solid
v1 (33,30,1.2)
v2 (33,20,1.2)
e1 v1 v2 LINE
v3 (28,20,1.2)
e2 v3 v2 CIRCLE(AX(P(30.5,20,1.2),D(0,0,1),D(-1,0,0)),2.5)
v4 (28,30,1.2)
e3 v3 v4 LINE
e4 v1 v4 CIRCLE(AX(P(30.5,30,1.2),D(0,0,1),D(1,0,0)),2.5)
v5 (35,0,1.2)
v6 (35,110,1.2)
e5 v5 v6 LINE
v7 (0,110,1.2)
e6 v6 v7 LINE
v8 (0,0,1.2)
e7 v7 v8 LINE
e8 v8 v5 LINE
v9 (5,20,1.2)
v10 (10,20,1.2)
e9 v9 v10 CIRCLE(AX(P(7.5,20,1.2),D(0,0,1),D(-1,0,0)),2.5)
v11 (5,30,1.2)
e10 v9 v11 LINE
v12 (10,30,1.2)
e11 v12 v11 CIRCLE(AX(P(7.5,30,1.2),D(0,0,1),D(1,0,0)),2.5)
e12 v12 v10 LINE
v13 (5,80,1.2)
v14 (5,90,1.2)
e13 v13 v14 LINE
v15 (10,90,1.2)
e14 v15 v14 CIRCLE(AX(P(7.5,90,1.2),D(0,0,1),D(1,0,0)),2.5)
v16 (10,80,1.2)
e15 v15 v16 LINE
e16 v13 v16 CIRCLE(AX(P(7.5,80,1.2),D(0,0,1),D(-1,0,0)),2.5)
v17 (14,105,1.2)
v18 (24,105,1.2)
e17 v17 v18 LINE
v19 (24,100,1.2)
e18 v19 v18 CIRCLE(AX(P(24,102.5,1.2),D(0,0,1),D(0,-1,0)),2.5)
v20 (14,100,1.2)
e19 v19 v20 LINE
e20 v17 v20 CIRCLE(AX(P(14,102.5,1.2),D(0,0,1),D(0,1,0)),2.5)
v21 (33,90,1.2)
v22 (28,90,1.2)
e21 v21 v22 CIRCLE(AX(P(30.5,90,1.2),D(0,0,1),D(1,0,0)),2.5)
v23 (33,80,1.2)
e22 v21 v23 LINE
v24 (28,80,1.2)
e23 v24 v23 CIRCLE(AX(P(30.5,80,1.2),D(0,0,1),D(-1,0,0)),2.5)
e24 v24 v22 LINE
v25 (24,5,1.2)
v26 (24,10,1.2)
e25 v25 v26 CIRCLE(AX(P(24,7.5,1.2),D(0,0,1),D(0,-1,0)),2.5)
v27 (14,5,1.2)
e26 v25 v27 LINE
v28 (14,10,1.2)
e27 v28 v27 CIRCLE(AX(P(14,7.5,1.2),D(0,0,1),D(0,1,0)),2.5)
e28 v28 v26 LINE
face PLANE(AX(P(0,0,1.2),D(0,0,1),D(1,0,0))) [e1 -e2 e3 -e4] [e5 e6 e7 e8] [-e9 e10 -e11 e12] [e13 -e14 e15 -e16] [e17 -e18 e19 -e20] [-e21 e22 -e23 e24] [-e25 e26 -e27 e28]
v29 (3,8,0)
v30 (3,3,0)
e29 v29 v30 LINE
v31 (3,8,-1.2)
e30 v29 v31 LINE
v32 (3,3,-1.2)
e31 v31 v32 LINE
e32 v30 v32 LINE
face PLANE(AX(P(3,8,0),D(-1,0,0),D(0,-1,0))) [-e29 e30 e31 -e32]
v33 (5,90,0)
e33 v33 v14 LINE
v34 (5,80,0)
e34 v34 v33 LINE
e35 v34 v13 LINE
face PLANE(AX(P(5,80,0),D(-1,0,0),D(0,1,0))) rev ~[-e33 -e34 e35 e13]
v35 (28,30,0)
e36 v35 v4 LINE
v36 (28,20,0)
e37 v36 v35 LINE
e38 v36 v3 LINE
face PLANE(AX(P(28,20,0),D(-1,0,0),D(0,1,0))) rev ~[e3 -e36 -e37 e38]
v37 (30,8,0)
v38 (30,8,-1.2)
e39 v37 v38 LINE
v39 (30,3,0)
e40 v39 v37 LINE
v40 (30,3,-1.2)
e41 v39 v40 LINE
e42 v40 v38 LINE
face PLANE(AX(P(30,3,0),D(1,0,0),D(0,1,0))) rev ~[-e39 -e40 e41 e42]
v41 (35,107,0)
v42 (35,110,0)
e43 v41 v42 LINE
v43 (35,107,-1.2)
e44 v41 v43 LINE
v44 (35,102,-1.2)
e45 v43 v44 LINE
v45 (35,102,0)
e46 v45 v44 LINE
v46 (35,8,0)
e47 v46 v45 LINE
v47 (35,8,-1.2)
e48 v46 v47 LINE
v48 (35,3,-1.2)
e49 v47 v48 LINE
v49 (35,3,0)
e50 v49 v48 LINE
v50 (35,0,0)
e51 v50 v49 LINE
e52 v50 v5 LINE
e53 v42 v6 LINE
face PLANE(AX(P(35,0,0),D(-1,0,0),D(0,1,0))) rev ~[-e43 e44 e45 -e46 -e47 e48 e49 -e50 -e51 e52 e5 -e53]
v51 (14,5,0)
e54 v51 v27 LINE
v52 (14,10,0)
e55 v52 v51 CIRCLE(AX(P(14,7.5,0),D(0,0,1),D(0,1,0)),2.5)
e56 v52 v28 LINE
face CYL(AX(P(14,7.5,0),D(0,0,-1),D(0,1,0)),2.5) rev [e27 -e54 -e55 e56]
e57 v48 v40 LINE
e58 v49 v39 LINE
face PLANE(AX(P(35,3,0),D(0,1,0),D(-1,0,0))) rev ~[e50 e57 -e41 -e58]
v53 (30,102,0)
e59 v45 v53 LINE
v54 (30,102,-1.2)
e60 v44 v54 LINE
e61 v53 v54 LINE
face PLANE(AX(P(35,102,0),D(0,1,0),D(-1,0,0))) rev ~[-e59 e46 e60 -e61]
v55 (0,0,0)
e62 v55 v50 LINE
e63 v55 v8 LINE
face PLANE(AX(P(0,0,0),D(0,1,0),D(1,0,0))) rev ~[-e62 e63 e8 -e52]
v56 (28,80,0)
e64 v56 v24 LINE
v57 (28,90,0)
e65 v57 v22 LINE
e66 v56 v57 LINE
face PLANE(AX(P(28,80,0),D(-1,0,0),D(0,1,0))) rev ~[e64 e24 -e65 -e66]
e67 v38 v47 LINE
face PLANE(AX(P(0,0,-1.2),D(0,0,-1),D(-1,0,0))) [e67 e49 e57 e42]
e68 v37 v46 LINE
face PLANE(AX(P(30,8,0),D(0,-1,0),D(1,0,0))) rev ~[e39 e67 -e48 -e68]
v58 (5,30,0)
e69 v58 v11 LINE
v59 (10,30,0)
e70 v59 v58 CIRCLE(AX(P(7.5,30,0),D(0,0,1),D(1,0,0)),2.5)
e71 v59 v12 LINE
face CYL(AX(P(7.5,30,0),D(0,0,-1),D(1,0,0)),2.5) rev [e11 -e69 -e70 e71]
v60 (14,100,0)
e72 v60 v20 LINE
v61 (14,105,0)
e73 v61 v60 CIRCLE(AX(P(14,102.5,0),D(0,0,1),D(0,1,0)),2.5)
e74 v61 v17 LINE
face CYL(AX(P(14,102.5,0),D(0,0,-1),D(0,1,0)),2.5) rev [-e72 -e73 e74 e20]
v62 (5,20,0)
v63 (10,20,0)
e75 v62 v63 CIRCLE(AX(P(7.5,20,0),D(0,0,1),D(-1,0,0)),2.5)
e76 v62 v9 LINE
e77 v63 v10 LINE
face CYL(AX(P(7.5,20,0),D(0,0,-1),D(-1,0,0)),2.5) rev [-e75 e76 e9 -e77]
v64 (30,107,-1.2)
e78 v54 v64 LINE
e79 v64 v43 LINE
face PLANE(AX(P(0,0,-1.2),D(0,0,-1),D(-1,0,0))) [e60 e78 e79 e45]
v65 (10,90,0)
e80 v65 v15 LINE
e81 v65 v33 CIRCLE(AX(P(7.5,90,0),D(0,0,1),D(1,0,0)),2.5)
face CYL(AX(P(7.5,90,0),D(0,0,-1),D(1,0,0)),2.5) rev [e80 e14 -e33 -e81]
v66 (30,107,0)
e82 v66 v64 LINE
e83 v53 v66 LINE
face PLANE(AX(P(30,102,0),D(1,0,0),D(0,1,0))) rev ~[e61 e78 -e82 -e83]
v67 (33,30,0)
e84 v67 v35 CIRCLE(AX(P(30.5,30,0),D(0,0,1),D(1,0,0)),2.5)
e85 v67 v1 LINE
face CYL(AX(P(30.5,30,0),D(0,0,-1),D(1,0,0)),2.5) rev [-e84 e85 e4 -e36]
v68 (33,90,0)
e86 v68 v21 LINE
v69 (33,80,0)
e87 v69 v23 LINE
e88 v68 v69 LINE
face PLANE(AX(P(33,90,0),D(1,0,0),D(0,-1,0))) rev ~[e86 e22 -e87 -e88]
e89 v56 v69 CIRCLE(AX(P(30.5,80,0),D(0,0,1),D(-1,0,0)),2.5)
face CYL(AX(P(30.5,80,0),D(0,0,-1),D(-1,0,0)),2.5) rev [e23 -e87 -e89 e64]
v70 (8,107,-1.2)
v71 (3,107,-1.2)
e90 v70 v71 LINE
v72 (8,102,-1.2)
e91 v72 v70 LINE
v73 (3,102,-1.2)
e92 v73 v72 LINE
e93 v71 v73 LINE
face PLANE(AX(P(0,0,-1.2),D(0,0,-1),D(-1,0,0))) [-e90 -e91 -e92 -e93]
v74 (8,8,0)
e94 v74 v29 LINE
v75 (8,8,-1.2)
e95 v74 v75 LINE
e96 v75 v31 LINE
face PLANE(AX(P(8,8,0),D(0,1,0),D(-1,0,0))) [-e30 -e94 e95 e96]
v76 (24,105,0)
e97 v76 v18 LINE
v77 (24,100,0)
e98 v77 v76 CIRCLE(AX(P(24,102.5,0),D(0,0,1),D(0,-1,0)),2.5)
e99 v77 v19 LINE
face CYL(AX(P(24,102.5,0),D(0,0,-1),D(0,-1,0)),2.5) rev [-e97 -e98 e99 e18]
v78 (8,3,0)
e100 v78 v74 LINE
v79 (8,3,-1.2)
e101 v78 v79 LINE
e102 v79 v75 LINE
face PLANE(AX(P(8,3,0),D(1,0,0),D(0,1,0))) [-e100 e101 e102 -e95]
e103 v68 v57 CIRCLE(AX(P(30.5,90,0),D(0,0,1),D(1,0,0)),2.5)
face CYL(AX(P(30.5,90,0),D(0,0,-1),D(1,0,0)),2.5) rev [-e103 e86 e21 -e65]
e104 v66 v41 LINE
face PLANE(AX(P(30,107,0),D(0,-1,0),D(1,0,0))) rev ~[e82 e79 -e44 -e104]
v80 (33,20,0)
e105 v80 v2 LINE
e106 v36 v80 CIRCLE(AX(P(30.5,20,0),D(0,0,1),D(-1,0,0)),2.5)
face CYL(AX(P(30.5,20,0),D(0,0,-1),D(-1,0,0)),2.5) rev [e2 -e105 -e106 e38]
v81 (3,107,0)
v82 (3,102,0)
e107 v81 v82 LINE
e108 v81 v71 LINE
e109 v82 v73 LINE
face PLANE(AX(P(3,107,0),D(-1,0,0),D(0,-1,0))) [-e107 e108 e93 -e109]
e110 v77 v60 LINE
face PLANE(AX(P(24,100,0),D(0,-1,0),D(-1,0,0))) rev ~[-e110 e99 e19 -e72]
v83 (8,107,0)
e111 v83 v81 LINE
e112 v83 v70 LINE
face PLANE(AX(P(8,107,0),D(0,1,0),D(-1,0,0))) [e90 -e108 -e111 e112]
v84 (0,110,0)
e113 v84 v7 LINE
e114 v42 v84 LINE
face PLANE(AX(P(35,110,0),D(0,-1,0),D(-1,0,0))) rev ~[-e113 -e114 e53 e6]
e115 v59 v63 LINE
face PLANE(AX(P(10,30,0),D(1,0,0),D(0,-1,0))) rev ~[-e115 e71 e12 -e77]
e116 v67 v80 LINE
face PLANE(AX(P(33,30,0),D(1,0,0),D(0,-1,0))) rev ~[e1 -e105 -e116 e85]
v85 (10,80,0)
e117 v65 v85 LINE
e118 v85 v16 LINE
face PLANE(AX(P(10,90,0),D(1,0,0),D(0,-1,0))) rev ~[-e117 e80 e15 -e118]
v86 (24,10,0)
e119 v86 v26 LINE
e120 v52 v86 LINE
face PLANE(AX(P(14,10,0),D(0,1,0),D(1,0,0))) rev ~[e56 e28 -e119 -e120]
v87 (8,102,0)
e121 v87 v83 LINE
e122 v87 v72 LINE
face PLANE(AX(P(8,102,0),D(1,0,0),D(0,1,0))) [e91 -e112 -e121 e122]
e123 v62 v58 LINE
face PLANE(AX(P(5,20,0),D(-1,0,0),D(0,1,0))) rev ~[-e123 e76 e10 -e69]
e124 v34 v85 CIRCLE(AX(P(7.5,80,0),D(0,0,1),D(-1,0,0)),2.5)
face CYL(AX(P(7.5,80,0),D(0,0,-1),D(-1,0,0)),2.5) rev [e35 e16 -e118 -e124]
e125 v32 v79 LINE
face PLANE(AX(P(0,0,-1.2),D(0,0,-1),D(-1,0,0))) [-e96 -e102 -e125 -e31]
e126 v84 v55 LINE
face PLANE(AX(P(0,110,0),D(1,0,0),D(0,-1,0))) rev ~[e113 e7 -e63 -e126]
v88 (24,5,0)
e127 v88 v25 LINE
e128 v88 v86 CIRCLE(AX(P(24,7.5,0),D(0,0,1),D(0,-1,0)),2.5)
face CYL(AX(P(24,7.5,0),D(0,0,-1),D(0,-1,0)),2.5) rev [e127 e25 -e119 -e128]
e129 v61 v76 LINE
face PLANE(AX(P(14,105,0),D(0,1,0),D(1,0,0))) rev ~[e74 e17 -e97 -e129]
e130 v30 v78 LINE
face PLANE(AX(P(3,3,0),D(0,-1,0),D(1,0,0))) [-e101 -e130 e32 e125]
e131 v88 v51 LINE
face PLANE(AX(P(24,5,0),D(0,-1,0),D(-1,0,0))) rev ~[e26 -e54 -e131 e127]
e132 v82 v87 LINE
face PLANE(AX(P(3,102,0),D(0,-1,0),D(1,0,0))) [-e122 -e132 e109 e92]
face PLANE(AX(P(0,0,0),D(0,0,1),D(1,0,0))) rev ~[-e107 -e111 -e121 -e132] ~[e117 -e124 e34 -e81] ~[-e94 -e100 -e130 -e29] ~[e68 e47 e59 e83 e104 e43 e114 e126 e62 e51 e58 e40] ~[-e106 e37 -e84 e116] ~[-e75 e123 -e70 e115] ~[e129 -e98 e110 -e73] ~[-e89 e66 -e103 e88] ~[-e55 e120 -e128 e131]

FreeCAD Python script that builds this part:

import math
import FreeCAD as App
import Part
import Sketcher

V = App.Vector


def add_polygon(sketch, points):
    """Adds a closed chain of lines whose ends are joined by coincident constraints."""
    first, n = sketch.GeometryCount, len(points)
    for a, b in zip(points, points[1:] + points[:1]):
        sketch.addGeometry(Part.LineSegment(App.Vector(*a, 0), App.Vector(*b, 0)), False)
    for i in range(n):
        sketch.addConstraint(Sketcher.Constraint("Coincident", first + i, 2, first + (i + 1) % n, 1))

doc = App.newDocument("Part")
body = doc.addObject("PartDesign::Body", "Body")

# Sketch on XY plane
sketch1 = body.newObject("Sketcher::SketchObject", "Sketch")
sketch1.AttachmentSupport = (doc.getObject("XY_Plane"), [""])
sketch1.MapMode = "FlatFace"
add_polygon(sketch1, [(0, 110), (0, 0), (35, 0), (35, 110)])  # lines 0-3
sketch1.addGeometry(Part.ArcOfCircle(Part.Circle(V(7.5, 30, 0), V(0, 0, 1), 2.5), math.radians(0), math.radians(180)), False)  # 4
sketch1.addGeometry(Part.LineSegment(V(10, 30, 0), V(10, 20, 0)), False)  # 5
sketch1.addGeometry(Part.ArcOfCircle(Part.Circle(V(7.5, 20, 0), V(0, 0, 1), 2.5), math.radians(180), math.radians(360)), False)  # 6
sketch1.addGeometry(Part.LineSegment(V(5, 20, 0), V(5, 30, 0)), False)  # 7
sketch1.addGeometry(Part.ArcOfCircle(Part.Circle(V(14, 7.5, 0), V(0, 0, 1), 2.5), math.radians(90), math.radians(270)), False)  # 8
sketch1.addGeometry(Part.LineSegment(V(14, 10, 0), V(24, 10, 0)), False)  # 9
sketch1.addGeometry(Part.ArcOfCircle(Part.Circle(V(24, 7.5, 0), V(0, 0, 1), 2.5), math.radians(-90), math.radians(90)), False)  # 10
sketch1.addGeometry(Part.LineSegment(V(24, 5, 0), V(14, 5, 0)), False)  # 11
sketch1.addGeometry(Part.ArcOfCircle(Part.Circle(V(30.5, 30, 0), V(0, 0, 1), 2.5), math.radians(0), math.radians(180)), False)  # 12
sketch1.addGeometry(Part.LineSegment(V(33, 30, 0), V(33, 20, 0)), False)  # 13
sketch1.addGeometry(Part.ArcOfCircle(Part.Circle(V(30.5, 20, 0), V(0, 0, 1), 2.5), math.radians(180), math.radians(360)), False)  # 14
sketch1.addGeometry(Part.LineSegment(V(28, 20, 0), V(28, 30, 0)), False)  # 15
sketch1.addGeometry(Part.ArcOfCircle(Part.Circle(V(7.5, 90, 0), V(0, 0, 1), 2.5), math.radians(0), math.radians(180)), False)  # 16
sketch1.addGeometry(Part.LineSegment(V(10, 90, 0), V(10, 80, 0)), False)  # 17
sketch1.addGeometry(Part.ArcOfCircle(Part.Circle(V(7.5, 80, 0), V(0, 0, 1), 2.5), math.radians(180), math.radians(360)), False)  # 18
sketch1.addGeometry(Part.LineSegment(V(5, 80, 0), V(5, 90, 0)), False)  # 19
sketch1.addGeometry(Part.ArcOfCircle(Part.Circle(V(14, 102.5, 0), V(0, 0, 1), 2.5), math.radians(90), math.radians(270)), False)  # 20
sketch1.addGeometry(Part.LineSegment(V(14, 105, 0), V(24, 105, 0)), False)  # 21
sketch1.addGeometry(Part.ArcOfCircle(Part.Circle(V(24, 102.5, 0), V(0, 0, 1), 2.5), math.radians(-90), math.radians(90)), False)  # 22
sketch1.addGeometry(Part.LineSegment(V(24, 100, 0), V(14, 100, 0)), False)  # 23
sketch1.addGeometry(Part.ArcOfCircle(Part.Circle(V(30.5, 90, 0), V(0, 0, 1), 2.5), math.radians(0), math.radians(180)), False)  # 24
sketch1.addGeometry(Part.LineSegment(V(33, 90, 0), V(33, 80, 0)), False)  # 25
sketch1.addGeometry(Part.ArcOfCircle(Part.Circle(V(30.5, 80, 0), V(0, 0, 1), 2.5), math.radians(180), math.radians(360)), False)  # 26
sketch1.addGeometry(Part.LineSegment(V(28, 80, 0), V(28, 90, 0)), False)  # 27
sketch1.addConstraint(Sketcher.Constraint("Tangent", 4, 1, 5, 1))
sketch1.addConstraint(Sketcher.Constraint("Tangent", 5, 2, 6, 2))
sketch1.addConstraint(Sketcher.Constraint("Tangent", 6, 1, 7, 1))
sketch1.addConstraint(Sketcher.Constraint("Tangent", 7, 2, 4, 2))
sketch1.addConstraint(Sketcher.Constraint("Tangent", 8, 1, 9, 1))
sketch1.addConstraint(Sketcher.Constraint("Tangent", 9, 2, 10, 2))
sketch1.addConstraint(Sketcher.Constraint("Tangent", 10, 1, 11, 1))
sketch1.addConstraint(Sketcher.Constraint("Tangent", 11, 2, 8, 2))
sketch1.addConstraint(Sketcher.Constraint("Tangent", 12, 1, 13, 1))
sketch1.addConstraint(Sketcher.Constraint("Tangent", 13, 2, 14, 2))
sketch1.addConstraint(Sketcher.Constraint("Tangent", 14, 1, 15, 1))
sketch1.addConstraint(Sketcher.Constraint("Tangent", 15, 2, 12, 2))
sketch1.addConstraint(Sketcher.Constraint("Tangent", 16, 1, 17, 1))
sketch1.addConstraint(Sketcher.Constraint("Tangent", 17, 2, 18, 2))
sketch1.addConstraint(Sketcher.Constraint("Tangent", 18, 1, 19, 1))
sketch1.addConstraint(Sketcher.Constraint("Tangent", 19, 2, 16, 2))
sketch1.addConstraint(Sketcher.Constraint("Tangent", 20, 1, 21, 1))
sketch1.addConstraint(Sketcher.Constraint("Tangent", 21, 2, 22, 2))
sketch1.addConstraint(Sketcher.Constraint("Tangent", 22, 1, 23, 1))
sketch1.addConstraint(Sketcher.Constraint("Tangent", 23, 2, 20, 2))
sketch1.addConstraint(Sketcher.Constraint("Tangent", 24, 1, 25, 1))
sketch1.addConstraint(Sketcher.Constraint("Tangent", 25, 2, 26, 2))
sketch1.addConstraint(Sketcher.Constraint("Tangent", 26, 1, 27, 1))
sketch1.addConstraint(Sketcher.Constraint("Tangent", 27, 2, 24, 2))
sketch1.addConstraint(Sketcher.Constraint("Vertical", 0))
sketch1.addConstraint(Sketcher.Constraint("Horizontal", 1))
sketch1.addConstraint(Sketcher.Constraint("Vertical", 2))
sketch1.addConstraint(Sketcher.Constraint("Horizontal", 3))
sketch1.addConstraint(Sketcher.Constraint("Vertical", 5))
sketch1.addConstraint(Sketcher.Constraint("Vertical", 7))
sketch1.addConstraint(Sketcher.Constraint("Horizontal", 9))
sketch1.addConstraint(Sketcher.Constraint("Horizontal", 11))
sketch1.addConstraint(Sketcher.Constraint("Vertical", 13))
sketch1.addConstraint(Sketcher.Constraint("Vertical", 15))
sketch1.addConstraint(Sketcher.Constraint("Vertical", 17))
sketch1.addConstraint(Sketcher.Constraint("Vertical", 19))
sketch1.addConstraint(Sketcher.Constraint("Horizontal", 21))
sketch1.addConstraint(Sketcher.Constraint("Horizontal", 23))
sketch1.addConstraint(Sketcher.Constraint("Vertical", 25))
sketch1.addConstraint(Sketcher.Constraint("Vertical", 27))
sketch1.addConstraint(Sketcher.Constraint("Coincident", 0, 2, -1, 1))
sketch1.addConstraint(Sketcher.Constraint("Equal", 6, 8))
sketch1.addConstraint(Sketcher.Constraint("Equal", 10, 12))
sketch1.addConstraint(Sketcher.Constraint("Equal", 14, 16))
sketch1.addConstraint(Sketcher.Constraint("Equal", 18, 20))
sketch1.addConstraint(Sketcher.Constraint("Equal", 22, 24))
sketch1.addConstraint(Sketcher.Constraint("Horizontal", 4, 3, 12, 3))
sketch1.addConstraint(Sketcher.Constraint("Horizontal", 6, 3, 14, 3))
sketch1.addConstraint(Sketcher.Constraint("Horizontal", 16, 3, 24, 3))
sketch1.addConstraint(Sketcher.Constraint("Horizontal", 18, 3, 26, 3))
sketch1.addConstraint(Sketcher.Constraint("Vertical", 6, 3, 16, 3))
sketch1.addConstraint(Sketcher.Constraint("Vertical", 8, 3, 20, 3))
sketch1.addConstraint(Sketcher.Constraint("Vertical", 10, 3, 22, 3))
sketch1.addConstraint(Sketcher.Constraint("Vertical", 14, 3, 24, 3))
sketch1.addConstraint(Sketcher.Constraint("Equal", 23, 5))
sketch1.addConstraint(Sketcher.Constraint("Equal", 15, 17))
sketch1.addConstraint(Sketcher.Constraint("Radius", 4, 2.5))
sketch1.addConstraint(Sketcher.Constraint("DistanceX", 1, 1, 1, 2, 35.0))
sketch1.addConstraint(Sketcher.Constraint("DistanceX", 9, 1, 9, 2, 10.0))
sketch1.addConstraint(Sketcher.Constraint("DistanceY", 0, 2, 0, 1, 110.0))
sketch1.addConstraint(Sketcher.Constraint("DistanceX", -1, 1, 4, 1, 10.0))
sketch1.addConstraint(Sketcher.Constraint("DistanceY", -1, 1, 8, 1, 10.0))
sketch1.addConstraint(Sketcher.Constraint("DistanceY", 4, 3, 18, 3, 50.0))
sketch1.addConstraint(Sketcher.Constraint("DistanceY", 8, 1, 5, 2, 10.0))
sketch1.addConstraint(Sketcher.Constraint("DistanceY", 20, 1, 3, 2, 5.0))
sketch1.addConstraint(Sketcher.Constraint("DistanceX", -1, 1, 8, 3, 14.0))
sketch1.addConstraint(Sketcher.Constraint("DistanceX", -1, 1, 12, 1, 33.0))
pad1 = body.newObject("PartDesign::Pad", "Pad")
pad1.Profile = sketch1
pad1.Length = 1.2

# Sketch on XY plane
sketch2 = body.newObject("Sketcher::SketchObject", "Sketch001")
sketch2.AttachmentSupport = (doc.getObject("XY_Plane"), [""])
sketch2.MapMode = "FlatFace"
add_polygon(sketch2, [(35, 8), (35, 3), (30, 3), (30, 8)])  # lines 0-3
add_polygon(sketch2, [(8, 3), (3, 3), (3, 8), (8, 8)])  # lines 4-7
add_polygon(sketch2, [(8, 102), (3, 102), (3, 107), (8, 107)])  # lines 8-11
add_polygon(sketch2, [(30, 102), (30, 107), (35, 107), (35, 102)])  # lines 12-15
sketch2.addConstraint(Sketcher.Constraint("Vertical", 0))
sketch2.addConstraint(Sketcher.Constraint("Horizontal", 1))
sketch2.addConstraint(Sketcher.Constraint("Vertical", 2))
sketch2.addConstraint(Sketcher.Constraint("Horizontal", 3))
sketch2.addConstraint(Sketcher.Constraint("Horizontal", 4))
sketch2.addConstraint(Sketcher.Constraint("Vertical", 5))
sketch2.addConstraint(Sketcher.Constraint("Horizontal", 6))
sketch2.addConstraint(Sketcher.Constraint("Vertical", 7))
sketch2.addConstraint(Sketcher.Constraint("Horizontal", 8))
sketch2.addConstraint(Sketcher.Constraint("Vertical", 9))
sketch2.addConstraint(Sketcher.Constraint("Horizontal", 10))
sketch2.addConstraint(Sketcher.Constraint("Vertical", 11))
sketch2.addConstraint(Sketcher.Constraint("Vertical", 12))
sketch2.addConstraint(Sketcher.Constraint("Horizontal", 13))
sketch2.addConstraint(Sketcher.Constraint("Vertical", 14))
sketch2.addConstraint(Sketcher.Constraint("Horizontal", 15))
sketch2.addConstraint(Sketcher.Constraint("Horizontal", 1, 2, 4, 2))
sketch2.addConstraint(Sketcher.Constraint("Horizontal", 3, 2, 5, 2))
sketch2.addConstraint(Sketcher.Constraint("Horizontal", 10, 2, 12, 2))
sketch2.addConstraint(Sketcher.Constraint("Horizontal", 11, 2, 14, 2))
sketch2.addConstraint(Sketcher.Constraint("Vertical", 5, 2, 8, 2))
sketch2.addConstraint(Sketcher.Constraint("Vertical", 7, 2, 10, 2))
sketch2.addConstraint(Sketcher.Constraint("Vertical", 2, 2, 12, 2))
sketch2.addConstraint(Sketcher.Constraint("Vertical", 3, 2, 13, 2))
sketch2.addConstraint(Sketcher.Constraint("Equal", 3, 4))
sketch2.addConstraint(Sketcher.Constraint("Equal", 15, 0))
sketch2.addConstraint(Sketcher.Constraint("Equal", 7, 9))
sketch2.addConstraint(Sketcher.Constraint("DistanceX", 1, 2, 1, 1, 5.0))
sketch2.addConstraint(Sketcher.Constraint("DistanceY", -1, 1, 0, 2, 3.0))
sketch2.addConstraint(Sketcher.Constraint("DistanceX", -1, 1, 4, 2, 3.0))
sketch2.addConstraint(Sketcher.Constraint("DistanceX", -1, 1, 0, 2, 35.0))
sketch2.addConstraint(Sketcher.Constraint("DistanceY", -1, 1, 8, 2, 102.0))
pad2 = body.newObject("PartDesign::Pad", "Pad001")
pad2.Profile = sketch2
pad2.Length = 1.2
pad2.Reversed = True

doc.recompute()
